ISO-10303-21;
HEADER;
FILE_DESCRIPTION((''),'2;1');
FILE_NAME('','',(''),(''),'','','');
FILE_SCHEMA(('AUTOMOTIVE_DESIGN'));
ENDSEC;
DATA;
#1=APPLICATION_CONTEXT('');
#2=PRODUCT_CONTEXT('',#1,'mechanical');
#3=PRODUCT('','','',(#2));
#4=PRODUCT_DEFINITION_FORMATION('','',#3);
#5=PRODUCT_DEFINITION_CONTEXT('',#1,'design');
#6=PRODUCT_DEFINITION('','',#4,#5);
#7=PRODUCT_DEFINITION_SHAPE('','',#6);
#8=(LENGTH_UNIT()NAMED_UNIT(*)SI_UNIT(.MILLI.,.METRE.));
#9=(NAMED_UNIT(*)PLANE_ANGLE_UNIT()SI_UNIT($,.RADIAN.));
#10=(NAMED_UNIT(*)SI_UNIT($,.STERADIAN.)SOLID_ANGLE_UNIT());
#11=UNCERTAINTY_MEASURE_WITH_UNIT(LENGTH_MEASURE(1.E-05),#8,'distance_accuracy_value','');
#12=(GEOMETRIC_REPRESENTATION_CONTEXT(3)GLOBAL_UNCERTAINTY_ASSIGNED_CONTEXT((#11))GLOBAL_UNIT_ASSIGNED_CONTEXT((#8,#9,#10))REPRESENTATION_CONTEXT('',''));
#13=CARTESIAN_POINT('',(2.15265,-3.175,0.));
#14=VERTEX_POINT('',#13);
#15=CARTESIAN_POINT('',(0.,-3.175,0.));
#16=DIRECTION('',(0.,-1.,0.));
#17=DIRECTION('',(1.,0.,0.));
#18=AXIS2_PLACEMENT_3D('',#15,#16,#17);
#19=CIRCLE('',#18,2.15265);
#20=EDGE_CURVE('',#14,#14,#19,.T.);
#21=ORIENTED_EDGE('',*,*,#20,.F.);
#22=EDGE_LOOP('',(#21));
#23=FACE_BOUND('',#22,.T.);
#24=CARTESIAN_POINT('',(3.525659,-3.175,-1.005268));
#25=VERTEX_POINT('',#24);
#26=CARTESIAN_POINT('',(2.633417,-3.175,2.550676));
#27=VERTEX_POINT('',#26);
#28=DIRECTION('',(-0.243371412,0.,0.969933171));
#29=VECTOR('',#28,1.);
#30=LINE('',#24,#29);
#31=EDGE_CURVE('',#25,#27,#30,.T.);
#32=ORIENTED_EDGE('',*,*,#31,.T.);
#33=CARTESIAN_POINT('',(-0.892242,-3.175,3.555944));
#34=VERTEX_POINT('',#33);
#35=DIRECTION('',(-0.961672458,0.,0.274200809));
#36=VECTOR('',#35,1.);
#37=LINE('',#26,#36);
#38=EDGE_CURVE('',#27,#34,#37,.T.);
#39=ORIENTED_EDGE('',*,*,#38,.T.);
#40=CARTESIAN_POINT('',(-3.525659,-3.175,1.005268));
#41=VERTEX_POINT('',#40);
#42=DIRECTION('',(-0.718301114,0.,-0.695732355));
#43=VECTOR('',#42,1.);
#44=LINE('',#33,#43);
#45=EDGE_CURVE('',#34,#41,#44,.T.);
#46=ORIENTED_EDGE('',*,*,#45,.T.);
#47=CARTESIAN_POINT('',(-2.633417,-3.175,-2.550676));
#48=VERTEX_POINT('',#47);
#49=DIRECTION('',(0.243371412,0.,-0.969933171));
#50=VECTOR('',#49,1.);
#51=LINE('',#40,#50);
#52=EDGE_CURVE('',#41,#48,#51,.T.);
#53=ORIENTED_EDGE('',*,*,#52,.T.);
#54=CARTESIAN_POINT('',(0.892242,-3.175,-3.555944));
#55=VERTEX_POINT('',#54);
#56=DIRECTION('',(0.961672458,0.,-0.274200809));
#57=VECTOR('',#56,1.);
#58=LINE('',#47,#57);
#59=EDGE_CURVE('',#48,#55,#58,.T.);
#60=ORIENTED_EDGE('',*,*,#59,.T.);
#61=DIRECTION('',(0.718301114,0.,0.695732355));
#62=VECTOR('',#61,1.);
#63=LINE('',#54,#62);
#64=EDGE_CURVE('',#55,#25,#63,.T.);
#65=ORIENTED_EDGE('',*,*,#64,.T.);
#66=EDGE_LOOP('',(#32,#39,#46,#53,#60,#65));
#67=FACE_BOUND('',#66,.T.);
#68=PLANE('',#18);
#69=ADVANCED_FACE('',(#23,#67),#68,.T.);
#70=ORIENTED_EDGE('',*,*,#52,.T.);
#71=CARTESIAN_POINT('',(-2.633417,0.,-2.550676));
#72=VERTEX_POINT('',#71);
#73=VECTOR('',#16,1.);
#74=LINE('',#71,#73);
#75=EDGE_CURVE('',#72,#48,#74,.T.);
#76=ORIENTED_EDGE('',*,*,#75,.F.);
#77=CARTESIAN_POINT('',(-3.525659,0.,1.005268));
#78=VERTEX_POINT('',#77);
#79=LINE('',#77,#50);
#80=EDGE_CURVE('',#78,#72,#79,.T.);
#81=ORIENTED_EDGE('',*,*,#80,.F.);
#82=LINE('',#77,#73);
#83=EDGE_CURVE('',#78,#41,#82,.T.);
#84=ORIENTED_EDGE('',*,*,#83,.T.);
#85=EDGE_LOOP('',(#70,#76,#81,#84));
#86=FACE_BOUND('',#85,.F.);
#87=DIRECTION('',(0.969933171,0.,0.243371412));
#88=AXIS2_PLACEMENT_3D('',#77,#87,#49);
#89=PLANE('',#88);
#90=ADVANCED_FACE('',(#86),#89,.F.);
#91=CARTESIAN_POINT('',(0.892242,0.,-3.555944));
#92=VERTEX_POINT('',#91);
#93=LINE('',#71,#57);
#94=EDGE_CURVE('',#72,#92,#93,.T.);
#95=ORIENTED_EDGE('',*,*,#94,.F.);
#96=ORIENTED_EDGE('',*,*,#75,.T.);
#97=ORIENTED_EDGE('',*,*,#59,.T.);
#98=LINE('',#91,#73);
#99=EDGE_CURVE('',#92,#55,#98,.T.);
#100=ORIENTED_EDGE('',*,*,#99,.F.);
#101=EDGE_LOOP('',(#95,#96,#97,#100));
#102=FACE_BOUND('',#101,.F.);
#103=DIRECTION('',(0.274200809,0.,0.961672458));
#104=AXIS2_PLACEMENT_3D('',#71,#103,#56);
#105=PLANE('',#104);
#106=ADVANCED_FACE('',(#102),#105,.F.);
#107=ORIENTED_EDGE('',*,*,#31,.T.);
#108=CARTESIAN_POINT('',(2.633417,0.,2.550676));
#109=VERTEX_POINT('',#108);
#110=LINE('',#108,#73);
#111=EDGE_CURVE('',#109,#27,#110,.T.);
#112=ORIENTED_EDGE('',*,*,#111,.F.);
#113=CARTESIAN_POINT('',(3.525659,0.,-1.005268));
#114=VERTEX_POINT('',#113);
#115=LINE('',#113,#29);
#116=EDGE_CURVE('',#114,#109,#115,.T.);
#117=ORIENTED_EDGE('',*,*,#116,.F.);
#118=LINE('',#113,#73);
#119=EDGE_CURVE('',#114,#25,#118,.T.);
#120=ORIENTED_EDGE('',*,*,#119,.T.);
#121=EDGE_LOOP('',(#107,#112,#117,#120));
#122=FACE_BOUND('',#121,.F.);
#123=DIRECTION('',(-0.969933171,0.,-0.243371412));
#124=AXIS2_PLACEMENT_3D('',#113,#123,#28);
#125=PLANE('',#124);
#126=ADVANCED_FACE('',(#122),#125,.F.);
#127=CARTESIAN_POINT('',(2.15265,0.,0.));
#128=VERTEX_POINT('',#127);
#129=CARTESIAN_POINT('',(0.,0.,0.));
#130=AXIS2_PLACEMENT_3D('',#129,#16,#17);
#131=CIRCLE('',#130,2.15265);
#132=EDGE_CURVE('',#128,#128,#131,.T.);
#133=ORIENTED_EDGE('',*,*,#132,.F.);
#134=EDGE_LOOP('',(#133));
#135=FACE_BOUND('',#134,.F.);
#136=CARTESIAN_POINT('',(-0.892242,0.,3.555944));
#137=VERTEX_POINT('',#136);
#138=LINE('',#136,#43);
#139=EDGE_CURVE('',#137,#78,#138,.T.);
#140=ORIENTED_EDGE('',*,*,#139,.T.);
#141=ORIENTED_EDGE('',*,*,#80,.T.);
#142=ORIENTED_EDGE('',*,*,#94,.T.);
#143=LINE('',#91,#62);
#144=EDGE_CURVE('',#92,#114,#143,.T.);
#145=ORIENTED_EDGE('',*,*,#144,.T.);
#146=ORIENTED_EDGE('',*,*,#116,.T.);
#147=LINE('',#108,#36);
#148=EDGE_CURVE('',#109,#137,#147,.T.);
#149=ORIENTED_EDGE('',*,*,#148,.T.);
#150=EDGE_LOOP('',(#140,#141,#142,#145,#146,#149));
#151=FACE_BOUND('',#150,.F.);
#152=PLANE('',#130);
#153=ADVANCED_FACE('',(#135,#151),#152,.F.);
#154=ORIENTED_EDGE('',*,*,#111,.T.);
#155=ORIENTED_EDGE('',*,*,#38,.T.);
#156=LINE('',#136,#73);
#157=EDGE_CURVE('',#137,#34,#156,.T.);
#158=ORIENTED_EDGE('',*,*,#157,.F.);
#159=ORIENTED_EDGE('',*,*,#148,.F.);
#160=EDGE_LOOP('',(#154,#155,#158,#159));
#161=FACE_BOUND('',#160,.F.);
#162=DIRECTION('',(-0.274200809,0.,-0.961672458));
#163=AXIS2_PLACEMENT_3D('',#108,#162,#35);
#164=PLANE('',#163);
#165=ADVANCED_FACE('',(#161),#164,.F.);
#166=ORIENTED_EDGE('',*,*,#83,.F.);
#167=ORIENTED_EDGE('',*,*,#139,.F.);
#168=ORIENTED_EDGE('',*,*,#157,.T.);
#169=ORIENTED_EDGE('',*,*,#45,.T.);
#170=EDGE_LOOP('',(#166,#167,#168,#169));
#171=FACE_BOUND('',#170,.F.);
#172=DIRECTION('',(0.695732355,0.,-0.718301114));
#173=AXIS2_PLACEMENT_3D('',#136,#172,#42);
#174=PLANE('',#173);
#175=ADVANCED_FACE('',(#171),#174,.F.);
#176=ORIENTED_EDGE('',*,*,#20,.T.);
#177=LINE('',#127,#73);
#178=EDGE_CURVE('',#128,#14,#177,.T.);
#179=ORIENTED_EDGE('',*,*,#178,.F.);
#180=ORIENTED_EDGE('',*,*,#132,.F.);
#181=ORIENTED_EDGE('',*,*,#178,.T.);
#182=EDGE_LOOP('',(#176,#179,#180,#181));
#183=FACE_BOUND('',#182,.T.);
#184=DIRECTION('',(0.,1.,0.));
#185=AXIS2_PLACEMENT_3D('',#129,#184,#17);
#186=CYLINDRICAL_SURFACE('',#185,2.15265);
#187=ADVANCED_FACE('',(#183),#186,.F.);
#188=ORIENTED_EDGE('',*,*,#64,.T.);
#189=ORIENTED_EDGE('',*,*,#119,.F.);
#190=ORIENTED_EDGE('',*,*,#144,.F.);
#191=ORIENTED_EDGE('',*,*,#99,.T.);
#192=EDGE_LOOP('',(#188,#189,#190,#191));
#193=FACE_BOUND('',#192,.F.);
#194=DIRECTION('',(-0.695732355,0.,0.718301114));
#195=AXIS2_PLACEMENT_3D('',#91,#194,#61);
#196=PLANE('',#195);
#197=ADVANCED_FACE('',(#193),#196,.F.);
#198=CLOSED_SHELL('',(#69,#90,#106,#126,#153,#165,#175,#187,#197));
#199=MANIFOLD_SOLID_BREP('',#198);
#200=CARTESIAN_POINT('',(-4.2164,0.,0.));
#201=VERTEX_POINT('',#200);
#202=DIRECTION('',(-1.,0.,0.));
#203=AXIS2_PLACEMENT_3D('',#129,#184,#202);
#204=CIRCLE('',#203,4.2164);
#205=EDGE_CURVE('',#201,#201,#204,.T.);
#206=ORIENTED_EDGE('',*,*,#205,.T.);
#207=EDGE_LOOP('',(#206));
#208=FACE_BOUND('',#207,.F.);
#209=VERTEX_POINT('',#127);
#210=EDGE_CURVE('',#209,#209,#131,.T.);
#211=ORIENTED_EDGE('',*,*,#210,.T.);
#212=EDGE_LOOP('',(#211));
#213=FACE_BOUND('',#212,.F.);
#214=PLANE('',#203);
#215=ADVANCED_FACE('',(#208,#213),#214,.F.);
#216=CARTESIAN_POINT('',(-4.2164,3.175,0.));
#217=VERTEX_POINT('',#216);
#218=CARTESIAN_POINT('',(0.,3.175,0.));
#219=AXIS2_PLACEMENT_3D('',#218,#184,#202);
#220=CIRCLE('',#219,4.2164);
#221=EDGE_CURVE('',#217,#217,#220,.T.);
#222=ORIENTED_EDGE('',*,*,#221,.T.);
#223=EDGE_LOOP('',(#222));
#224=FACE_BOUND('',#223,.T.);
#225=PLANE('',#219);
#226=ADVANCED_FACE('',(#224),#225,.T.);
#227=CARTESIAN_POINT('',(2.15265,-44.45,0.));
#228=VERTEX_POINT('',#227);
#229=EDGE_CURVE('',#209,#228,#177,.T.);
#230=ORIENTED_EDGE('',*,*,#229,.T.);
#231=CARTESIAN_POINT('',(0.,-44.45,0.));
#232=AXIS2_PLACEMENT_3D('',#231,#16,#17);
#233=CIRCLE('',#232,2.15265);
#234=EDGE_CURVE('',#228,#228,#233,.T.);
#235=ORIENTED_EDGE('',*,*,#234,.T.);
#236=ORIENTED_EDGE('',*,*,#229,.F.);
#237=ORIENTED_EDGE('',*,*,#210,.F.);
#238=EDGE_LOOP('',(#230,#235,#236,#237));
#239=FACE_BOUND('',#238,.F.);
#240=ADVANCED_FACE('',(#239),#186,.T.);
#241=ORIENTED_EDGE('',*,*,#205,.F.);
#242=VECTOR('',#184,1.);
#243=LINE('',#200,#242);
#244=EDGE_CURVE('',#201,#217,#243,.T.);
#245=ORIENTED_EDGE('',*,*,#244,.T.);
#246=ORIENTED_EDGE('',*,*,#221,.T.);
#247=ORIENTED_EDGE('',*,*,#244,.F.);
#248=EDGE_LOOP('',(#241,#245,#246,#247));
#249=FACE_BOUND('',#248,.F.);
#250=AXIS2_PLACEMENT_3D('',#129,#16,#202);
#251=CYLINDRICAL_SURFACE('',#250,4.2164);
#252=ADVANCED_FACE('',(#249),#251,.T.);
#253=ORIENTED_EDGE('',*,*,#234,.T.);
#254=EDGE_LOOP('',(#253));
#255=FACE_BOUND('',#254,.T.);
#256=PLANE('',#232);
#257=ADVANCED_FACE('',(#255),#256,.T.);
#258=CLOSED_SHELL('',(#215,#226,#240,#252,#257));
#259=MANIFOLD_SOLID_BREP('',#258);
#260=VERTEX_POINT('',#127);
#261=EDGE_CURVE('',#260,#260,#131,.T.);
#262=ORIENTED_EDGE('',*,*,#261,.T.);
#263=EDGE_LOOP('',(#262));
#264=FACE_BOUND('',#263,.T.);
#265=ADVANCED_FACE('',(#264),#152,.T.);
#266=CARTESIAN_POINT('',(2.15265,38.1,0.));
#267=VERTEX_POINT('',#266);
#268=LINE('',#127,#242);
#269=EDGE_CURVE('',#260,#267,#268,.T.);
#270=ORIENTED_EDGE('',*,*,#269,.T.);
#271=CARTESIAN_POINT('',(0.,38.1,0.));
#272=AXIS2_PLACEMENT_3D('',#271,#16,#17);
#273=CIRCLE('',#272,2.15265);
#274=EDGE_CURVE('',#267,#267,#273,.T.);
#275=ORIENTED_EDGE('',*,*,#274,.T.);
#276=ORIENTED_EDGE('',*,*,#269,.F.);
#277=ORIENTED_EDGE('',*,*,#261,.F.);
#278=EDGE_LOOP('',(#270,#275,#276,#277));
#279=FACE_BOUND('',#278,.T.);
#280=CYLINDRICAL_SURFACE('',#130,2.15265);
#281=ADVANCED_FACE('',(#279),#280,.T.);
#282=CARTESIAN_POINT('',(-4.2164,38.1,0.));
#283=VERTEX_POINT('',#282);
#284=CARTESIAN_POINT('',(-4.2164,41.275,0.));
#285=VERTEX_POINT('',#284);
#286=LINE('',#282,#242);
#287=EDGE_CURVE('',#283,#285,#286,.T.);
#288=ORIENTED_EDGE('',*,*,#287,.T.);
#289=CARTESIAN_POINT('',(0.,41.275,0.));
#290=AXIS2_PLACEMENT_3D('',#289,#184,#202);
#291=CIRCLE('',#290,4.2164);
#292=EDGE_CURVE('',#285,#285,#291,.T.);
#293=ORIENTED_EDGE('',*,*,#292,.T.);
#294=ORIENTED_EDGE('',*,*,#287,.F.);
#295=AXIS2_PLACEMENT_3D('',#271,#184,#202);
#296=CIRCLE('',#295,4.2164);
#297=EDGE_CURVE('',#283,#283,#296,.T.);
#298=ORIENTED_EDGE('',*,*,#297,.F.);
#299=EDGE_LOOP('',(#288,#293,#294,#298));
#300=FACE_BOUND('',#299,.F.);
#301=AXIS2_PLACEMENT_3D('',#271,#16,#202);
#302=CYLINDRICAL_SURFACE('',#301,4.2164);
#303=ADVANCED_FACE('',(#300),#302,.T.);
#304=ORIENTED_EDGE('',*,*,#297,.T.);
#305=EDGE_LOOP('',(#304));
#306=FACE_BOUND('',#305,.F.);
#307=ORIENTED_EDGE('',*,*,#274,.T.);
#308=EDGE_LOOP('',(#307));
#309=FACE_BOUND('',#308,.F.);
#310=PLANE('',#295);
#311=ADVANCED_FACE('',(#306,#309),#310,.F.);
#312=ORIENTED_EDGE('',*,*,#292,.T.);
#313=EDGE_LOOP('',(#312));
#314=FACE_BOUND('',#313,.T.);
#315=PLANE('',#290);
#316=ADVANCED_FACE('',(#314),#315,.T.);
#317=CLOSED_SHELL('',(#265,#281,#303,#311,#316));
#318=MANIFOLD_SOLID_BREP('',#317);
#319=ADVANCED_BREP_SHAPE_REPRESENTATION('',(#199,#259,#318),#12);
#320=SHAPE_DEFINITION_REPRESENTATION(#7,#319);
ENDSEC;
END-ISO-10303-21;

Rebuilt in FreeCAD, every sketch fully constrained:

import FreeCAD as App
import Part
import Sketcher

V = App.Vector
Q = App.Units.Quantity


def add_polygon(sketch, points):
    """Adds a closed chain of lines whose ends are joined by coincident constraints."""
    first, n = sketch.GeometryCount, len(points)
    for a, b in zip(points, points[1:] + points[:1]):
        sketch.addGeometry(Part.LineSegment(App.Vector(*a, 0), App.Vector(*b, 0)), False)
    for i in range(n):
        sketch.addConstraint(Sketcher.Constraint("Coincident", first + i, 2, first + (i + 1) % n, 1))

doc = App.newDocument("Part")
body = doc.addObject("PartDesign::Body", "Body")

# Sketch on XZ plane
sketch1 = body.newObject("Sketcher::SketchObject", "Sketch")
sketch1.AttachmentSupport = (doc.getObject("XZ_Plane"), [""])
sketch1.MapMode = "FlatFace"
sketch1.addGeometry(Part.Circle(V(0, 0, 0), V(0, 0, 1), 2.2), False)
sketch1.addConstraint([
    Sketcher.Constraint("Coincident", 0, 3, -1, 1),
    Sketcher.Constraint("Diameter", 0, Q("0.1695 in")),
])
pad1 = body.newObject("PartDesign::Pad", "Pad")
pad1.Profile = sketch1
pad1.Length = Q("1.75 in")

# Sketch on XZ plane
sketch2 = body.newObject("Sketcher::SketchObject", "Sketch001")
sketch2.AttachmentSupport = (doc.getObject("XZ_Plane"), [""])
sketch2.MapMode = "FlatFace"
sketch2.addGeometry(Part.Circle(V(0, 0, 0), V(0, 0, 1), 4.2), False)
sketch2.addConstraint([
    Sketcher.Constraint("Coincident", 0, 3, -1, 1),
    Sketcher.Constraint("Diameter", 0, Q("0.332 in")),
])
pad2 = body.newObject("PartDesign::Pad", "Pad001")
pad2.Profile = sketch2
pad2.Length = Q("0.125 in")
pad2.Reversed = True
body2 = doc.addObject("PartDesign::Body", "Body001")

# Sketch on XZ plane
sketch3 = body2.newObject("Sketcher::SketchObject", "Sketch002")
sketch3.AttachmentSupport = (doc.getObject("XZ_Plane001"), [""])
sketch3.MapMode = "FlatFace"
add_polygon(sketch3, [(0.9, -3.6), (3.5, -1), (2.6, 2.6), (-0.9, 3.6), (-3.5, 1), (-2.6, -2.6)])  # lines 0-5
sketch3.addGeometry(Part.Circle(V(0, 0, 0), V(0, 0, 1), 2.2), False)  # 6
sketch3.addConstraint([
    Sketcher.Constraint("Coincident", 6, 3, -1, 1),
    Sketcher.Constraint("Symmetric", 0, 2, 3, 2, -1, 1),
    Sketcher.Constraint("Symmetric", 1, 2, 4, 2, -1, 1),
    Sketcher.Constraint("Symmetric", 2, 2, 5, 2, -1, 1),
    Sketcher.Constraint("Equal", 0, 1),
    Sketcher.Constraint("Equal", 1, 2),
    Sketcher.Constraint("Diameter", 6, Q("0.1695 in")),
    Sketcher.Constraint("DistanceX", 2, 2, 0, 2, Q("4.417901 mm")),
    Sketcher.Constraint("DistanceX", -1, 1, 0, 2, Q("3.525659 mm")),
    Sketcher.Constraint("DistanceX", 1, 2, 0, 2, Q("0.892242 mm")),
    Sketcher.Constraint("DistanceY", 3, 2, 1, 2, Q("1.545408 mm")),
])
pad3 = body2.newObject("PartDesign::Pad", "Pad002")
pad3.Profile = sketch3
pad3.Length = Q("0.125 in")
body3 = doc.addObject("PartDesign::Body", "Body002")

# Sketch on XZ plane
sketch4 = body3.newObject("Sketcher::SketchObject", "Sketch003")
sketch4.AttachmentSupport = (doc.getObject("XZ_Plane002"), [""])
sketch4.MapMode = "FlatFace"
sketch4.addGeometry(Part.Circle(V(0, 0, 0), V(0, 0, 1), 2.2), False)
sketch4.addConstraint([
    Sketcher.Constraint("Coincident", 0, 3, -1, 1),
    Sketcher.Constraint("Diameter", 0, Q("0.1695 in")),
])
pad4 = body3.newObject("PartDesign::Pad", "Pad003")
pad4.Profile = sketch4
pad4.Length = Q("1.5 in")
pad4.Reversed = True

# Sketch on XZ plane
sketch5 = body3.newObject("Sketcher::SketchObject", "Sketch004")
sketch5.AttachmentSupport = (doc.getObject("XZ_Plane002"), [""])
sketch5.MapMode = "FlatFace"
sketch5.AttachmentOffset = App.Placement(V(0, 0, -1.5 * 25.4), App.Rotation())
sketch5.addGeometry(Part.Circle(V(0, 0, 0), V(0, 0, 1), 4.2), False)
sketch5.addConstraint([
    Sketcher.Constraint("Coincident", 0, 3, -1, 1),
    Sketcher.Constraint("Diameter", 0, Q("0.332 in")),
])
pad5 = body3.newObject("PartDesign::Pad", "Pad004")
pad5.Profile = sketch5
pad5.Length = Q("0.125 in")
pad5.Reversed = True

doc.recompute()
